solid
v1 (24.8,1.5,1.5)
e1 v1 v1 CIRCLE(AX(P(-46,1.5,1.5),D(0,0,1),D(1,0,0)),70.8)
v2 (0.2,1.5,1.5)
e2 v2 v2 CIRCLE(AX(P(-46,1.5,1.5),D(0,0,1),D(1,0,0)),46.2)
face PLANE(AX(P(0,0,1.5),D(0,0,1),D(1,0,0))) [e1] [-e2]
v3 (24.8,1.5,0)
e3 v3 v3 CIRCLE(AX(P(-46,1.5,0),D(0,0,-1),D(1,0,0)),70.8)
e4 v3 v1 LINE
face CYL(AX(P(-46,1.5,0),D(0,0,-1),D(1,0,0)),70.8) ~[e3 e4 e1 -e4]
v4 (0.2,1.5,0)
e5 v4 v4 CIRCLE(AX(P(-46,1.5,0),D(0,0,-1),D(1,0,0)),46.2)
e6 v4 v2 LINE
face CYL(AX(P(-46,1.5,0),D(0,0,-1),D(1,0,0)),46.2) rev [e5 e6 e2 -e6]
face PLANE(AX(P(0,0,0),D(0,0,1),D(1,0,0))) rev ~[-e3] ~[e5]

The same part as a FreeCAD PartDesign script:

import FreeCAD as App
import Part
import Sketcher
Q = App.Units.Quantity

doc = App.newDocument("Part")
body = doc.addObject("PartDesign::Body", "Body")

# Sketch on XY plane
sketch1 = body.newObject("Sketcher::SketchObject", "Sketch")
sketch1.AttachmentSupport = (doc.getObject("XY_Plane"), [""])
sketch1.MapMode = "FlatFace"
sketch1.addGeometry(Part.Circle(App.Vector(-46, 2, 0), App.Vector(0, 0, 1), 71), False)
sketch1.addGeometry(Part.Circle(App.Vector(-46, 2, 0), App.Vector(0, 0, 1), 46), False)
sketch1.addConstraint(Sketcher.Constraint("Coincident", 1, 3, 0, 3))
sketch1.addConstraint(Sketcher.Constraint("Diameter", 0, Q("141.6 mm")))
sketch1.addConstraint(Sketcher.Constraint("Diameter", 1, Q("92.4 mm")))
sketch1.addConstraint(Sketcher.Constraint("DistanceX", 0, 3, -1, 1, Q("46 mm")))
sketch1.addConstraint(Sketcher.Constraint("DistanceY", -1, 1, 0, 3, Q("1.5 mm")))
pad1 = body.newObject("PartDesign::Pad", "Pad")
pad1.Profile = sketch1
pad1.Length = 1.5

doc.recompute()
